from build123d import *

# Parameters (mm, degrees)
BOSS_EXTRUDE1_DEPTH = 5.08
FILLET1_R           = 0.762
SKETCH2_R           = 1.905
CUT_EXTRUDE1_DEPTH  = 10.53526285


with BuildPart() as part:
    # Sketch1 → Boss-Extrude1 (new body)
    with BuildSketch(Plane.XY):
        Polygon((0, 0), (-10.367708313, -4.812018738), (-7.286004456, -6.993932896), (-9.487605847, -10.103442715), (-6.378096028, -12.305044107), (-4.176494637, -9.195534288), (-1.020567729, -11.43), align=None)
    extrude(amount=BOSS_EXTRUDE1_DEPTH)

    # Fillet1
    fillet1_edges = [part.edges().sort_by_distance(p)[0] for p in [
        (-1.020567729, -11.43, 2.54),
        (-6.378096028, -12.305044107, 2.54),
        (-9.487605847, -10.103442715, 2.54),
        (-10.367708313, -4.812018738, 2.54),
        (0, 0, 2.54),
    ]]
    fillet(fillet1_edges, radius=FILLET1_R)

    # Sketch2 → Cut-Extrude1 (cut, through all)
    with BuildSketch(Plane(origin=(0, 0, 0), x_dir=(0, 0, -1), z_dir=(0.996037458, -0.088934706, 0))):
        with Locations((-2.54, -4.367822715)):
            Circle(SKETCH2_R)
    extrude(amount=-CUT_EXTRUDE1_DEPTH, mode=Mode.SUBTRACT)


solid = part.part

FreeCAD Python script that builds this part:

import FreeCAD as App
import Part
import Sketcher
from FreeCAD import Vector
Q = App.Units.Quantity


def edges_at(feature, points):
    """Names of the edges that pass closest to the given points."""
    edges = feature.Shape.Edges
    near = lambda p: min(range(len(edges)), key=lambda i: edges[i].distToShape(Part.Vertex(*p))[0])
    return sorted({f"Edge{near(p) + 1}" for p in points})


def add_polygon(sketch, points):
    """Adds a closed chain of lines whose ends are joined by coincident constraints."""
    first, n = sketch.GeometryCount, len(points)
    for a, b in zip(points, points[1:] + points[:1]):
        sketch.addGeometry(Part.LineSegment(App.Vector(*a, 0), App.Vector(*b, 0)), False)
    for i in range(n):
        sketch.addConstraint(Sketcher.Constraint("Coincident", first + i, 2, first + (i + 1) % n, 1))

doc = App.newDocument("Part")
params = doc.addObject("Spreadsheet::Sheet", "Params")
for row, (alias, value) in enumerate([
    ("sketch1_length", "0.45 in"),
    ("sketch1_length2", "0.15 in"),
    ("pad1_length", "0.2 in"),
    ("fillet_radius", "0.03 in"),
    ("sketch2_diameter", "0.15 in"),
], start=1):
    params.set(f"A{row}", alias)
    params.set(f"B{row}", "=" + value)
    params.setAlias(f"B{row}", alias)

body = doc.addObject("PartDesign::Body", "Body")

# Sketch on XY plane
sketch1 = body.newObject("Sketcher::SketchObject", "Sketch")
sketch1.AttachmentSupport = (doc.getObject("XY_Plane"), [""])
sketch1.MapMode = "FlatFace"
add_polygon(sketch1, [(0, 0), (-10.4, -4.8), (-7.3, -7), (-9.5, -10.1), (-6.4, -12.3), (-4.2, -9.2), (-1, -11.4)])  # lines 0-6
sketch1.addConstraint([
    Sketcher.Constraint("Coincident", 6, 2, -1, 1),
    Sketcher.Constraint("Perpendicular", 1, 2),
    Sketcher.Constraint("Perpendicular", 2, 3),
    Sketcher.Constraint("Perpendicular", 3, 4),
    Sketcher.Constraint("Perpendicular", 4, 5),
    Sketcher.Constraint("Equal", 2, 3),
    Sketcher.Constraint("Equal", 3, 4),
    Sketcher.Constraint("Distance", 0, Q("0.45 in")),
    Sketcher.Constraint("Distance", 2, Q("0.15 in")),
    Sketcher.Constraint("DistanceY", 5, 2, -1, 1, Q("0.45 in")),
    Sketcher.Constraint("DistanceX", 2, 2, 1, 2, 2.201601),
    Sketcher.Constraint("Distance", 1, 3.77593),
    Sketcher.Constraint("DistanceX", 0, 2, -1, 1, 10.367708),
])
sketch1.setExpression("Constraints[14]", "Params.sketch1_length")
sketch1.setExpression("Constraints[15]", "Params.sketch1_length2")
pad1 = body.newObject("PartDesign::Pad", "Pad")
pad1.Profile = sketch1
pad1.setExpression("Length", "Params.pad1_length")
doc.recompute()

fillet = body.newObject("PartDesign::Fillet", "Fillet")
fillet.Base = (pad1, edges_at(pad1, [
    (-1.021, -11.43, 2.54),
    (-6.378, -12.305, 2.54),
    (-9.488, -10.103, 2.54),
    (-10.368, -4.812, 2.54),
    (0, 0, 2.54),
]))
fillet.setExpression("Radius", "Params.fillet_radius")

# Sketch on an angled plane
sketch2 = body.newObject("Sketcher::SketchObject", "Sketch001")
sketch2.Placement = App.Placement(Vector(0, 0, 0), App.Rotation(Vector(0, 0, -1), Vector(0.088934706, 0.996037458, 0), Vector(0.996037458, -0.088934706, 0), "ZXY"))
sketch2.addGeometry(Part.Circle(Vector(-2.5, -4.4, 0), Vector(0, 0, 1), 1.9), False)
sketch2.addConstraint([
    Sketcher.Constraint("Diameter", 0, Q("0.15 in")),
    Sketcher.Constraint("DistanceX", 0, 3, -1, 1, Q("0.1 in")),
    Sketcher.Constraint("DistanceY", 0, 3, -1, 1, 4.367823),
])
sketch2.setExpression("Constraints[0]", "Params.sketch2_diameter")
pocket1 = body.newObject("PartDesign::Pocket", "Pocket")
pocket1.Profile = sketch2
pocket1.Type = "ThroughAll"

doc.recompute()
